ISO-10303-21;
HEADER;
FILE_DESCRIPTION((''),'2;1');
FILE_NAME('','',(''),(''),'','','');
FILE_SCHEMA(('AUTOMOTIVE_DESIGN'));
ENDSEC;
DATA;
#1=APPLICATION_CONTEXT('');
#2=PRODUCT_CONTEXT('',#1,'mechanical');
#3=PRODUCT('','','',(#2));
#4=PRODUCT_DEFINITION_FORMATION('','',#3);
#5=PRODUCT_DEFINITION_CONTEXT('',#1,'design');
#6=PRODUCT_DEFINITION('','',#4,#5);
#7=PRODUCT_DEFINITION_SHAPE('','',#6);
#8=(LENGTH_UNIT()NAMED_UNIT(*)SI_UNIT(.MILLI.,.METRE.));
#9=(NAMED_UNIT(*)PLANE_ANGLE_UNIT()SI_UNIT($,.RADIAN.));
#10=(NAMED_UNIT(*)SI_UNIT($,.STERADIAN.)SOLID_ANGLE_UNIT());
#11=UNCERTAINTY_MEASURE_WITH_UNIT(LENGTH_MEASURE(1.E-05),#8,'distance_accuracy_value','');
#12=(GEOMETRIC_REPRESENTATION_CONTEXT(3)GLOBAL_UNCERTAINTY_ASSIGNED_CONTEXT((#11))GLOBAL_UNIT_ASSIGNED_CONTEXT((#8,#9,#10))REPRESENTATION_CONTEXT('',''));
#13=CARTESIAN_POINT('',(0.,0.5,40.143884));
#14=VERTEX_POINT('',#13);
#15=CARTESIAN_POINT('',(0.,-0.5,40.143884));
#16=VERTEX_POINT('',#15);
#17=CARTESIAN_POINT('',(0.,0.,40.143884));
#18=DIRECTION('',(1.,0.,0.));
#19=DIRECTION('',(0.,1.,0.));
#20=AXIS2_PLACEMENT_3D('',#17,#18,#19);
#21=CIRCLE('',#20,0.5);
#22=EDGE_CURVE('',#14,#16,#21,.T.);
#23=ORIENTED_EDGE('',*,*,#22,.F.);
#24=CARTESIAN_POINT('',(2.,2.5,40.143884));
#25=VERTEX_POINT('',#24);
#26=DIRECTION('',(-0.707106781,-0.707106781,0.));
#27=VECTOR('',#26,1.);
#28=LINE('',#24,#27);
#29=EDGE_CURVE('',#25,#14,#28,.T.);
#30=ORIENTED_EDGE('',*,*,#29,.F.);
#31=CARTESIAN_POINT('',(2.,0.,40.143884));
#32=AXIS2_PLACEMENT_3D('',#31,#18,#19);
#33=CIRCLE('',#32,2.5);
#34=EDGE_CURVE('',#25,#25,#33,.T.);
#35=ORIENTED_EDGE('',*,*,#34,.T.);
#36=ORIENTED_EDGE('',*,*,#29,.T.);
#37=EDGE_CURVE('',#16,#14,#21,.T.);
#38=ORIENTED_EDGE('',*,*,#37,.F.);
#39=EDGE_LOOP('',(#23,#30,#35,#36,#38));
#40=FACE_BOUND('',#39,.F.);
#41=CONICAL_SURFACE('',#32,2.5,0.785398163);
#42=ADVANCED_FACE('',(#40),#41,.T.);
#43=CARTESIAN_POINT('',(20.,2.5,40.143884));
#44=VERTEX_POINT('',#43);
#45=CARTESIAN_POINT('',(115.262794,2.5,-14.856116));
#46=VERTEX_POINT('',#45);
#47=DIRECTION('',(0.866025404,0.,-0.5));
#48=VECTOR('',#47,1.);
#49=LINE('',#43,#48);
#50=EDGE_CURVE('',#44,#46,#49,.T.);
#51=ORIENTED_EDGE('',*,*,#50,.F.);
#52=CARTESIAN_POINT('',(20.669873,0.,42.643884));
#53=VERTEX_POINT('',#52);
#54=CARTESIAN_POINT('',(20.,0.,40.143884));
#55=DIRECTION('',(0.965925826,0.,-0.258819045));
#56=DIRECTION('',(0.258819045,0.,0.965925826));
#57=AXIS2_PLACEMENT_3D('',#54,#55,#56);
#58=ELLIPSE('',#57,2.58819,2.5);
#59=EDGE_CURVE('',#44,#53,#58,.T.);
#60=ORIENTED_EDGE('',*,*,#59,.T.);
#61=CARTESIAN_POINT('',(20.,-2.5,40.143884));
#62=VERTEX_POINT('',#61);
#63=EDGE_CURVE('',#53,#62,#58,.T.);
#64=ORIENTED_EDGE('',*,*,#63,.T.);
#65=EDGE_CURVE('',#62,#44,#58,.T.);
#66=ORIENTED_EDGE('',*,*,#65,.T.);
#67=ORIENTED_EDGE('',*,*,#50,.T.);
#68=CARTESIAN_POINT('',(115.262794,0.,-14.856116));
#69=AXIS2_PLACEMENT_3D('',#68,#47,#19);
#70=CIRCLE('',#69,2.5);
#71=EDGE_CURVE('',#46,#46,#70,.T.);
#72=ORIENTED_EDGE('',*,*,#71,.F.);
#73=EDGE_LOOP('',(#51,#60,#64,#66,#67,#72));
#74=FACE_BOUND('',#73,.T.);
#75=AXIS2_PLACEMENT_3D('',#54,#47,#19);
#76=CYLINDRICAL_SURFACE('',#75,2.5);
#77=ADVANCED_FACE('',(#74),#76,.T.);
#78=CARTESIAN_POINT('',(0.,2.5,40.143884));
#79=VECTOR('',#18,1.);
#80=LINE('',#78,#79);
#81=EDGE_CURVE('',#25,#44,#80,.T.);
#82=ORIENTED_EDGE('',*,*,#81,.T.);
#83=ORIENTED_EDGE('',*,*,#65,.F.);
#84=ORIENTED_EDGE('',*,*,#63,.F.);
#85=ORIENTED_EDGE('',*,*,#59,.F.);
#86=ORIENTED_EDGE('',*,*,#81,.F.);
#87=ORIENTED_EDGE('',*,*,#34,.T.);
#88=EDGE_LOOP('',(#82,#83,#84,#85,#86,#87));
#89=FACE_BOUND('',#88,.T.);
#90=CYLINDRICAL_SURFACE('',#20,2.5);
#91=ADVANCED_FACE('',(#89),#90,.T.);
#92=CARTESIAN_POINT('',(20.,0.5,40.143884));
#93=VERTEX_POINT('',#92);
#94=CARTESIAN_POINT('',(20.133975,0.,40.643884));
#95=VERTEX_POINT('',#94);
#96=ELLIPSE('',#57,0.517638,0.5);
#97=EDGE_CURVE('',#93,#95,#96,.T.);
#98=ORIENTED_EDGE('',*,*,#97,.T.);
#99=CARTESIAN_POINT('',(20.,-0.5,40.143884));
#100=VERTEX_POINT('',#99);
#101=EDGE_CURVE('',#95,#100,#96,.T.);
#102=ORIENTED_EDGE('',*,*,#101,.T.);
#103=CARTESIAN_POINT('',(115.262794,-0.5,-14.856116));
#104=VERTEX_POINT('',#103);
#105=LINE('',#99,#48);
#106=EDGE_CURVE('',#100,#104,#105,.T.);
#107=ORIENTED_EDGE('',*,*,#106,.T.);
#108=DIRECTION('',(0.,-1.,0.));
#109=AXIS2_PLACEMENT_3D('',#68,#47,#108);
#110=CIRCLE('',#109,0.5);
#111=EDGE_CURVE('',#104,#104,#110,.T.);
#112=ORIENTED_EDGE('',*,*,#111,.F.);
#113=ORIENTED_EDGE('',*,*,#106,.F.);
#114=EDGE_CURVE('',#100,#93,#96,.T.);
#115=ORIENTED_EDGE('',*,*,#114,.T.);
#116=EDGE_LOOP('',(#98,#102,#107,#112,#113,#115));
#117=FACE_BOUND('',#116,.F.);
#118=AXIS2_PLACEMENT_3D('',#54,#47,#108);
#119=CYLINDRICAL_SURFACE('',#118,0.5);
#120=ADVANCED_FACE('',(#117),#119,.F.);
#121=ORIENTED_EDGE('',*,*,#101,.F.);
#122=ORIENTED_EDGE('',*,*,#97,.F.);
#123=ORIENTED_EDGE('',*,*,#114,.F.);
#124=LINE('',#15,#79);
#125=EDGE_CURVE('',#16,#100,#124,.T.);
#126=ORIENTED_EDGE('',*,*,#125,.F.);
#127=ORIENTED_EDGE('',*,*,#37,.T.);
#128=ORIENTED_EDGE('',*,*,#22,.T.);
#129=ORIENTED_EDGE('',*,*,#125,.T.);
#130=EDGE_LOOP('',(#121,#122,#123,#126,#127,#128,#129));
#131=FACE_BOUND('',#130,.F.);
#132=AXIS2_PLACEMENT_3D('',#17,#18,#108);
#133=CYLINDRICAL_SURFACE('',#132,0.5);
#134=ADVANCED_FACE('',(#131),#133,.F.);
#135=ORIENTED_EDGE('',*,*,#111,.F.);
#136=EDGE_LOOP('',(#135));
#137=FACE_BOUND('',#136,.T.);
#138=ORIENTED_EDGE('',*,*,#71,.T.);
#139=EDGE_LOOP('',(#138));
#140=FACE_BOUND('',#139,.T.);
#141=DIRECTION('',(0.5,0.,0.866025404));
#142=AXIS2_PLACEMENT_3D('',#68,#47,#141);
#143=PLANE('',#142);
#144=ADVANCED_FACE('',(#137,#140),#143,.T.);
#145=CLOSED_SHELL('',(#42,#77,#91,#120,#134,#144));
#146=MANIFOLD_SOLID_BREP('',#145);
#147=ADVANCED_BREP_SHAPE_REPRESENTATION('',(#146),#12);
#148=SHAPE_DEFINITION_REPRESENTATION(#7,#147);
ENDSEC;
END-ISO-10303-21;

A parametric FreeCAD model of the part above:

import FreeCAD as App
import Part
import Sketcher
from FreeCAD import Vector
Q = App.Units.Quantity


def edges_at(feature, points):
    """Names of the edges that pass closest to the given points."""
    edges = feature.Shape.Edges
    near = lambda p: min(range(len(edges)), key=lambda i: edges[i].distToShape(Part.Vertex(*p))[0])
    return sorted({f"Edge{near(p) + 1}" for p in points})

doc = App.newDocument("Part")
body = doc.addObject("PartDesign::Body", "Body")

# Sketch on YZ plane
sketch1 = body.newObject("Sketcher::SketchObject", "Sketch")
sketch1.AttachmentSupport = (doc.getObject("YZ_Plane"), [""])
sketch1.MapMode = "FlatFace"
sketch1.addGeometry(Part.Circle(Vector(0, 40.1, 0), Vector(0, 0, 1), 2.5), False)
sketch1.addConstraint([
    Sketcher.Constraint("PointOnObject", 0, 3, -2),
    Sketcher.Constraint("Diameter", 0, 5.0),
    Sketcher.Constraint("DistanceY", -1, 1, 0, 3, 40.143884),
])

# Sketch on XZ plane
sketch2 = body.newObject("Sketcher::SketchObject", "Sketch001")
sketch2.AttachmentSupport = (doc.getObject("XZ_Plane"), [""])
sketch2.MapMode = "FlatFace"
sketch2.addGeometry([
    Part.LineSegment(Vector(0, 40, 0), Vector(20, 40, 0)),
    Part.LineSegment(Vector(20, 40, 0), Vector(115, -15, 0)),
], False)
sketch2.addConstraint([
    Sketcher.Constraint("Coincident", 0, 2, 1, 1),
    Sketcher.Constraint("Horizontal", 0),
    Sketcher.Constraint("PointOnObject", 0, 1, -2),
    Sketcher.Constraint("DistanceX", 0, 1, 0, 2, 20.0),
    Sketcher.Constraint("Angle", 1, Q("-30 deg")),
    Sketcher.Constraint("Distance", 1, 110.0),
    Sketcher.Constraint("DistanceY", -1, 1, 0, 1, 40.143884),
])
doc.recompute()

additivepipe = body.newObject("PartDesign::AdditivePipe", "AdditivePipe")
additivepipe.Profile = sketch1
additivepipe.Spine = (sketch2, ["Edge1", "Edge2"])
additivepipe.Transition = "Right corner"
doc.recompute()

chamfer = body.newObject("PartDesign::Chamfer", "Chamfer")
chamfer.Base = (additivepipe, edges_at(additivepipe, [(0, -2.5, 40.144)]))
chamfer.Size = 2

# Sketch on YZ plane
sketch3 = body.newObject("Sketcher::SketchObject", "Sketch002")
sketch3.AttachmentSupport = (doc.getObject("YZ_Plane"), [""])
sketch3.MapMode = "FlatFace"
sketch3.addGeometry(Part.Circle(Vector(0, 40.1, 0), Vector(0, 0, 1), 0.5), False)
sketch3.addConstraint([
    Sketcher.Constraint("PointOnObject", 0, 3, -2),
    Sketcher.Constraint("Diameter", 0, 1.0),
    Sketcher.Constraint("DistanceY", -1, 1, 0, 3, 40.143884),
])

# Sketch on XZ plane
sketch4 = body.newObject("Sketcher::SketchObject", "Sketch003")
sketch4.AttachmentSupport = (doc.getObject("XZ_Plane"), [""])
sketch4.MapMode = "FlatFace"
sketch4.addGeometry([
    Part.LineSegment(Vector(0, 40, 0), Vector(20, 40, 0)),
    Part.LineSegment(Vector(20, 40, 0), Vector(115, -15, 0)),
], False)
sketch4.addConstraint([
    Sketcher.Constraint("Coincident", 0, 2, 1, 1),
    Sketcher.Constraint("Horizontal", 0),
    Sketcher.Constraint("PointOnObject", 0, 1, -2),
    Sketcher.Constraint("DistanceX", 0, 1, 0, 2, 20.0),
    Sketcher.Constraint("Angle", 1, Q("-30 deg")),
    Sketcher.Constraint("Distance", 1, 110.0),
    Sketcher.Constraint("DistanceY", -1, 1, 0, 1, 40.143884),
])
doc.recompute()

subtractivepipe = body.newObject("PartDesign::SubtractivePipe", "SubtractivePipe")
subtractivepipe.Profile = sketch3
subtractivepipe.Spine = (sketch4, ["Edge1", "Edge2"])
subtractivepipe.Transition = "Right corner"

doc.recompute()
